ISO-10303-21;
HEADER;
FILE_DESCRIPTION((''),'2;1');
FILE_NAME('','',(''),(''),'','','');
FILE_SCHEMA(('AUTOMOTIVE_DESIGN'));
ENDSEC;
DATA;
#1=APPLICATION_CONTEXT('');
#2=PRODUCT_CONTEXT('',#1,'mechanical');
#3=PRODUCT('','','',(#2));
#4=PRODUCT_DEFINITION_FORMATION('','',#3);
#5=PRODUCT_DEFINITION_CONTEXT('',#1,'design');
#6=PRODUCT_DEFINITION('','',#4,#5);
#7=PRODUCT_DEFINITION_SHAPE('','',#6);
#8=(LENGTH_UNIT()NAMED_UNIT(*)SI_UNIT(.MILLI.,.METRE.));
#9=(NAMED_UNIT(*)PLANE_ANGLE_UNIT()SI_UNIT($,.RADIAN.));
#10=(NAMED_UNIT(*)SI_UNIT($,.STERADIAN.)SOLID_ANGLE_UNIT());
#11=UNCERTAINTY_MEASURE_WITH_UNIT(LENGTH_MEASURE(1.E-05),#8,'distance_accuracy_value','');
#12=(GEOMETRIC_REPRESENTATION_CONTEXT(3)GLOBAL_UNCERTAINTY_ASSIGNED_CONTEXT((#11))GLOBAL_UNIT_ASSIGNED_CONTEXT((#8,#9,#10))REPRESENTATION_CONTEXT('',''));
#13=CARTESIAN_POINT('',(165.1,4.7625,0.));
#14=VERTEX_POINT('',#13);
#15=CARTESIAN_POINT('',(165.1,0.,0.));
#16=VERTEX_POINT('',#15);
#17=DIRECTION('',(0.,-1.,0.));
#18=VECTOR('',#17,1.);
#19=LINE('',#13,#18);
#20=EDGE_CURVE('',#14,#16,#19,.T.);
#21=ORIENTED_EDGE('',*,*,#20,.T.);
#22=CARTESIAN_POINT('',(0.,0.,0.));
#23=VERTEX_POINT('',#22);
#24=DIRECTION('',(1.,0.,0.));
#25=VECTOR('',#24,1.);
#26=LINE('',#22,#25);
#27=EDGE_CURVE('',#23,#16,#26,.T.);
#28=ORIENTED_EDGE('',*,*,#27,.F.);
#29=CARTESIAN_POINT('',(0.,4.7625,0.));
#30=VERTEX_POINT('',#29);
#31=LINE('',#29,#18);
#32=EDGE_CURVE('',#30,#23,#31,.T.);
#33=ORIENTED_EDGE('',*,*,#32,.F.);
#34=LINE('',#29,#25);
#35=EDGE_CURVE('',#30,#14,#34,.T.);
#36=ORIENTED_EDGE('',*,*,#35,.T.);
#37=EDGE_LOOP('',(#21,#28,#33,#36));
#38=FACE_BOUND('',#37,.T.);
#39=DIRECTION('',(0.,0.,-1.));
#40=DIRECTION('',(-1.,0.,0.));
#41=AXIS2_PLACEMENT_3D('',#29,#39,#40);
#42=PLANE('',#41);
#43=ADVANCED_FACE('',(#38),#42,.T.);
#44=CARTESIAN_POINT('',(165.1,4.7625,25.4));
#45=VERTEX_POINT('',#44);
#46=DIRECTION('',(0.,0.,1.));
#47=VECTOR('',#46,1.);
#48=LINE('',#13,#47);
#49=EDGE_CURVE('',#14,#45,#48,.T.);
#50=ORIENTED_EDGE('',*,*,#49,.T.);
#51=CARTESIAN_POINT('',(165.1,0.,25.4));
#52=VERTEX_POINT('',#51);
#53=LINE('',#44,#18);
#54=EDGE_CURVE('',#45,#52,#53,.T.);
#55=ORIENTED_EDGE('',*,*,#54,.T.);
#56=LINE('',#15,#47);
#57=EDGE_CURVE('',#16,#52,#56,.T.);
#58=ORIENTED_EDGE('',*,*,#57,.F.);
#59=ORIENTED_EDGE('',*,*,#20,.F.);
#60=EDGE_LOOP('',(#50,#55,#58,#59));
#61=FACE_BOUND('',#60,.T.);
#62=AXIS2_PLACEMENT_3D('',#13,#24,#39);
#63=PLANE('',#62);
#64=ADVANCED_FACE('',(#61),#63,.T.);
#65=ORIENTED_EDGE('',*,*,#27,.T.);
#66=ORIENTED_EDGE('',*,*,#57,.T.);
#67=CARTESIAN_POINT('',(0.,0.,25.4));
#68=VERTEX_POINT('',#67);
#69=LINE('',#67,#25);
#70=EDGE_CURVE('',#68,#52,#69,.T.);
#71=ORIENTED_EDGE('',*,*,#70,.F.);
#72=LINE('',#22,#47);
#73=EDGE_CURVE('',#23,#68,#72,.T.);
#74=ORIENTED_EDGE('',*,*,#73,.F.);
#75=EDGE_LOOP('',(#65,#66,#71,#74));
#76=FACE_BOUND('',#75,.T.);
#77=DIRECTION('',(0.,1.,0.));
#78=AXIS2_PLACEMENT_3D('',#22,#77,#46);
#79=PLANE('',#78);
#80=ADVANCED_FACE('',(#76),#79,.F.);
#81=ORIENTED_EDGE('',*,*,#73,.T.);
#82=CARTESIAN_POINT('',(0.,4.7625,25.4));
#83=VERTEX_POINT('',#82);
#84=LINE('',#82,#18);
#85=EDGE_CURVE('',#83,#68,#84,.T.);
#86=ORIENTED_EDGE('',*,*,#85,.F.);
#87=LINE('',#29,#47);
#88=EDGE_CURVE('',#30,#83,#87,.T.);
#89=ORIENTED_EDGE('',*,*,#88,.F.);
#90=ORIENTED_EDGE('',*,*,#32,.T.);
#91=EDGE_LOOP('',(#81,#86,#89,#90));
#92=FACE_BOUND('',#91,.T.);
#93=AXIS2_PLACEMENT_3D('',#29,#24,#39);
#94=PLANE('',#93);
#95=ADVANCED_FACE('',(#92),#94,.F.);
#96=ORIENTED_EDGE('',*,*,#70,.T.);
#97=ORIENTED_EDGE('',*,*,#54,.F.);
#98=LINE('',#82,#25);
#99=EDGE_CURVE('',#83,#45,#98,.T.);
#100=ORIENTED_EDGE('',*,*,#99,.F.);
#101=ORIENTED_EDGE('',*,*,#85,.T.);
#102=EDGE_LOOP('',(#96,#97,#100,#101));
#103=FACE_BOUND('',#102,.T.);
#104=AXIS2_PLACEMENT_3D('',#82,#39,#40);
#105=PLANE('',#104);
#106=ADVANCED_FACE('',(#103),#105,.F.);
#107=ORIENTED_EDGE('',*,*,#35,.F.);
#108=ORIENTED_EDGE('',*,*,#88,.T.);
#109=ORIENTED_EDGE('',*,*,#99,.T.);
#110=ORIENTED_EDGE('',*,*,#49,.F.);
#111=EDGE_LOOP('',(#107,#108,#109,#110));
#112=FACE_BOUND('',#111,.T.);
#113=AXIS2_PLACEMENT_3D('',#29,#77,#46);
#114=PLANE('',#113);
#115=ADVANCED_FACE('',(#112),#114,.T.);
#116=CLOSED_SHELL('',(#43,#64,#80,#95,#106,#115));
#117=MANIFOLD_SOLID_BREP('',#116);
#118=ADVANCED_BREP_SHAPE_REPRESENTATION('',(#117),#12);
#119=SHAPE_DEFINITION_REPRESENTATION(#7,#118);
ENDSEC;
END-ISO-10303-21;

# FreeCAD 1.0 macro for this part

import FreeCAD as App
import Part
import Sketcher

V = App.Vector
Q = App.Units.Quantity

doc = App.newDocument("Part")
body = doc.addObject("PartDesign::Body", "Body")

sketch1 = body.newObject("Sketcher::SketchObject", "Sketch")
sketch1.AttachmentSupport = (doc.getObject("XZ_Plane"), [""])
sketch1.MapMode = "FlatFace"
sketch1.addGeometry([
    Part.LineSegment(V(0, 0, 0), V(0, 25, 0)),
    Part.LineSegment(V(0, 25, 0), V(165, 25, 0)),
    Part.LineSegment(V(165, 25, 0), V(165, 0, 0)),
    Part.LineSegment(V(165, 0, 0), V(0, 0, 0)),
], False)
sketch1.addConstraint([
    Sketcher.Constraint("Coincident", 0, 2, 1, 1),
    Sketcher.Constraint("Coincident", 1, 2, 2, 1),
    Sketcher.Constraint("Coincident", 2, 2, 3, 1),
    Sketcher.Constraint("Coincident", 3, 2, 0, 1),
    Sketcher.Constraint("Vertical", 0),
    Sketcher.Constraint("Horizontal", 1),
    Sketcher.Constraint("Vertical", 2),
    Sketcher.Constraint("Horizontal", 3),
    Sketcher.Constraint("Coincident", 3, 2, -1, 1),
    Sketcher.Constraint("DistanceY", 0, 1, 0, 2, Q("1 in")),
    Sketcher.Constraint("DistanceX", 1, 1, 1, 2, Q("6.5 in")),
])
pad1 = body.newObject("PartDesign::Pad", "Pad")
pad1.Profile = sketch1
pad1.Length = Q("0.1875 in")
pad1.Reversed = True

doc.recompute()
